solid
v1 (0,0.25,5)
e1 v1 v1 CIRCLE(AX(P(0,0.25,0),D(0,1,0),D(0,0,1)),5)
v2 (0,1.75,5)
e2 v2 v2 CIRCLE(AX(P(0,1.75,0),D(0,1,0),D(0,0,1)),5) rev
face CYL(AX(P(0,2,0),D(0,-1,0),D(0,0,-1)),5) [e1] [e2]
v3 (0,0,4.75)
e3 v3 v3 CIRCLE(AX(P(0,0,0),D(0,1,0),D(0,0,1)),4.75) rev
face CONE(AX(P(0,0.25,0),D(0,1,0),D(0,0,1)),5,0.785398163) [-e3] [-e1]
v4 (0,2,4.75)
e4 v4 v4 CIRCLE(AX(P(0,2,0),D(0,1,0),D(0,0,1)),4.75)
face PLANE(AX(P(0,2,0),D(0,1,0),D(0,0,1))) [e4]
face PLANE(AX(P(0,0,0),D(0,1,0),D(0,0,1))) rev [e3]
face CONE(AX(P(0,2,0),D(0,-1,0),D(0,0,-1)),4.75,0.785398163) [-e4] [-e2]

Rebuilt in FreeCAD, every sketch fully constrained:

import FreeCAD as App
import Part
import Sketcher

V = App.Vector


def edges_at(feature, points):
    """Names of the edges that pass closest to the given points."""
    edges = feature.Shape.Edges
    near = lambda p: min(range(len(edges)), key=lambda i: edges[i].distToShape(Part.Vertex(*p))[0])
    return sorted({f"Edge{near(p) + 1}" for p in points})

doc = App.newDocument("Part")
body = doc.addObject("PartDesign::Body", "Body")

# Sketch on XZ plane
sketch1 = body.newObject("Sketcher::SketchObject", "Sketch")
sketch1.AttachmentSupport = (doc.getObject("XZ_Plane"), [""])
sketch1.MapMode = "FlatFace"
sketch1.addGeometry(Part.Circle(V(0, 0, 0), V(0, 0, 1), 5), False)
sketch1.addConstraint([
    Sketcher.Constraint("Coincident", 0, 3, -1, 1),
    Sketcher.Constraint("Diameter", 0, 10.0),
])
pad1 = body.newObject("PartDesign::Pad", "Pad")
pad1.Profile = sketch1
pad1.Length = 2
pad1.Reversed = True
doc.recompute()

chamfer = body.newObject("PartDesign::Chamfer", "Chamfer")
chamfer.Base = (pad1, edges_at(pad1, [(-5, 0, 0), (-5, 2, 0)]))
chamfer.Size = 0.25

doc.recompute()
